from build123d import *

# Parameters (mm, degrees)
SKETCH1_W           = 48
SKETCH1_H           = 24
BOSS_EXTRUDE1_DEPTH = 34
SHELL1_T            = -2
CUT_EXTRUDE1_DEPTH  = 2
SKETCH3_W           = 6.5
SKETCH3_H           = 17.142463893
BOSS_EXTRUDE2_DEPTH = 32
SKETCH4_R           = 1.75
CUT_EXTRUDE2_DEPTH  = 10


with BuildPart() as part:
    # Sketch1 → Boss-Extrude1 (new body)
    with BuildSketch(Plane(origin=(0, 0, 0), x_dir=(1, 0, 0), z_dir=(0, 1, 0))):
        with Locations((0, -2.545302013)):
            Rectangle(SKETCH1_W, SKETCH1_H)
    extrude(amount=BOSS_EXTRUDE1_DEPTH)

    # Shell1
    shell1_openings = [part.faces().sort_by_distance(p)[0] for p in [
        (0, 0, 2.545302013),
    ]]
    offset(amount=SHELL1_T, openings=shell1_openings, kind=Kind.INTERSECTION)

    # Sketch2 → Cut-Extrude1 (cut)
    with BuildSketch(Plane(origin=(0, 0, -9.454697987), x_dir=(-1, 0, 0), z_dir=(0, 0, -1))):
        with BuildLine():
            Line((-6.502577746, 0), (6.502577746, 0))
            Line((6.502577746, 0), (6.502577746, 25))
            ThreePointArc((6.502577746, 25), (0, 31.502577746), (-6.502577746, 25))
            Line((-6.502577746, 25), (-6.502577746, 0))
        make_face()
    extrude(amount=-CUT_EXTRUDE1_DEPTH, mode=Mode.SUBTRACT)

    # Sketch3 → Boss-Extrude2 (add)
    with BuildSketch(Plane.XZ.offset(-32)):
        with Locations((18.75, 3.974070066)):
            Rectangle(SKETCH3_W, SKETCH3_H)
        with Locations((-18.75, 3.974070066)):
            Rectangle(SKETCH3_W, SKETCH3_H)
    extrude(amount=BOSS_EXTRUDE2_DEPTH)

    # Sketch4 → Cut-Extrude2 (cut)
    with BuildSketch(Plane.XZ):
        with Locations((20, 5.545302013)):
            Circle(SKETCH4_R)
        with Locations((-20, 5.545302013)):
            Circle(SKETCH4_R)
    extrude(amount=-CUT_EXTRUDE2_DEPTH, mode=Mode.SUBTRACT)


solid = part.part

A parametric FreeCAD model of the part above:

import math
import FreeCAD as App
import Part
import Sketcher


def faces_at(feature, points):
    """Names of the faces that lie closest to the given points."""
    faces = feature.Shape.Faces
    near = lambda p: min(range(len(faces)), key=lambda i: faces[i].distToShape(Part.Vertex(*p))[0])
    return sorted({f"Face{near(p) + 1}" for p in points})

doc = App.newDocument("Part")
params = doc.addObject("Spreadsheet::Sheet", "Params")
for row, (alias, value) in enumerate([
    ("sketch1_width", "48 mm"),
    ("sketch1_height", "24 mm"),
    ("pad1_length", "34 mm"),
    ("thickness_wall", "2 mm"),
    ("sketch2_height", "25 mm"),
    ("pocket1_length", "2 mm"),
    ("sketch3_width", "6.5 mm"),
    ("pad2_length", "32 mm"),
    ("sketch4_diameter", "3.5 mm"),
    ("pocket2_length", "10 mm"),
], start=1):
    params.set(f"A{row}", alias)
    params.set(f"B{row}", "=" + value)
    params.setAlias(f"B{row}", alias)

body = doc.addObject("PartDesign::Body", "Body")

sketch1 = doc.addObject("Sketcher::SketchObject", "Sketch")
body.addObject(sketch1)
sketch1.AttachmentSupport = (doc.XZ_Plane, [""])
sketch1.MapMode = "FlatFace"
sketch1.addGeometry([
    Part.LineSegment(App.Vector(-24, -9, 0), App.Vector(-24, 15, 0)),
    Part.LineSegment(App.Vector(-24, 15, 0), App.Vector(24, 15, 0)),
    Part.LineSegment(App.Vector(24, 15, 0), App.Vector(24, -9, 0)),
    Part.LineSegment(App.Vector(24, -9, 0), App.Vector(-24, -9, 0)),
], False)
sketch1.addConstraint([
    Sketcher.Constraint("Coincident", 0, 2, 1, 1),
    Sketcher.Constraint("Coincident", 1, 2, 2, 1),
    Sketcher.Constraint("Coincident", 2, 2, 3, 1),
    Sketcher.Constraint("Coincident", 3, 2, 0, 1),
    Sketcher.Constraint("Vertical", 0),
    Sketcher.Constraint("Horizontal", 1),
    Sketcher.Constraint("Vertical", 2),
    Sketcher.Constraint("Horizontal", 3),
    Sketcher.Constraint("DistanceX", 1, 1, 1, 2, 48.0),
    Sketcher.Constraint("DistanceY", 0, 1, 0, 2, 24.0),
    Sketcher.Constraint("DistanceX", 0, 2, -1, 1, 24.0),
    Sketcher.Constraint("DistanceY", -1, 1, 0, 2, 14.545302),
])
sketch1.setExpression("Constraints[8]", "Params.sketch1_width")
sketch1.setExpression("Constraints[9]", "Params.sketch1_height")
pad1 = doc.addObject("PartDesign::Pad", "Pad")
body.addObject(pad1)
pad1.Profile = sketch1
pad1.setExpression("Length", "Params.pad1_length")
pad1.Reversed = True
doc.recompute()

thickness = doc.addObject("PartDesign::Thickness", "Thickness")
body.addObject(thickness)
thickness.Base = (pad1, faces_at(pad1, [(0, 0, 2.545)]))
thickness.setExpression("Value", "Params.thickness_wall")
thickness.Reversed = True
thickness.Join = "Intersection"

sketch2 = doc.addObject("Sketcher::SketchObject", "Sketch001")
body.addObject(sketch2)
sketch2.AttachmentSupport = (doc.XY_Plane, [""])
sketch2.MapMode = "FlatFace"
sketch2.AttachmentOffset = App.Placement(App.Vector(0, 0, -9.454698), App.Rotation())
sketch2.addGeometry([
    Part.LineSegment(App.Vector(7, 0, 0), App.Vector(-7, 0, 0)),
    Part.LineSegment(App.Vector(-7, 0, 0), App.Vector(-7, 25, 0)),
    Part.ArcOfCircle(Part.Circle(App.Vector(0, 25, 0), App.Vector(0, 0, 1), 7), math.radians(0), math.radians(180)),
    Part.LineSegment(App.Vector(7, 25, 0), App.Vector(7, 0, 0)),
], False)
sketch2.addConstraint([
    Sketcher.Constraint("Coincident", 0, 2, 1, 1),
    Sketcher.Constraint("Tangent", 1, 2, 2, 2),
    Sketcher.Constraint("Tangent", 2, 1, 3, 1),
    Sketcher.Constraint("Coincident", 3, 2, 0, 1),
    Sketcher.Constraint("Horizontal", 0),
    Sketcher.Constraint("Vertical", 1),
    Sketcher.Constraint("Vertical", 3),
    Sketcher.Constraint("Symmetric", 0, 2, 3, 2, -1, 1),
    Sketcher.Constraint("DistanceY", 1, 1, 1, 2, 25.0),
    Sketcher.Constraint("Radius", 2, 6.502578),
])
sketch2.setExpression("Constraints[8]", "Params.sketch2_height")
pocket1 = doc.addObject("PartDesign::Pocket", "Pocket")
body.addObject(pocket1)
pocket1.Profile = sketch2
pocket1.setExpression("Length", "Params.pocket1_length")
pocket1.Reversed = True

sketch3 = doc.addObject("Sketcher::SketchObject", "Sketch002")
body.addObject(sketch3)
sketch3.AttachmentSupport = (doc.XZ_Plane, [""])
sketch3.MapMode = "FlatFace"
sketch3.AttachmentOffset = App.Placement(App.Vector(0, 0, -32), App.Rotation())
sketch3.addGeometry([
    Part.LineSegment(App.Vector(16, 13, 0), App.Vector(16, -5, 0)),
    Part.LineSegment(App.Vector(16, -5, 0), App.Vector(22, -5, 0)),
    Part.LineSegment(App.Vector(22, -5, 0), App.Vector(22, 13, 0)),
    Part.LineSegment(App.Vector(22, 13, 0), App.Vector(16, 13, 0)),
    Part.LineSegment(App.Vector(-22, 13, 0), App.Vector(-22, -5, 0)),
    Part.LineSegment(App.Vector(-22, -5, 0), App.Vector(-16, -5, 0)),
    Part.LineSegment(App.Vector(-16, -5, 0), App.Vector(-16, 13, 0)),
    Part.LineSegment(App.Vector(-16, 13, 0), App.Vector(-22, 13, 0)),
], False)
sketch3.addConstraint([
    Sketcher.Constraint("Coincident", 0, 2, 1, 1),
    Sketcher.Constraint("Coincident", 1, 2, 2, 1),
    Sketcher.Constraint("Coincident", 2, 2, 3, 1),
    Sketcher.Constraint("Coincident", 3, 2, 0, 1),
    Sketcher.Constraint("Coincident", 4, 2, 5, 1),
    Sketcher.Constraint("Coincident", 5, 2, 6, 1),
    Sketcher.Constraint("Coincident", 6, 2, 7, 1),
    Sketcher.Constraint("Coincident", 7, 2, 4, 1),
    Sketcher.Constraint("Vertical", 0),
    Sketcher.Constraint("Horizontal", 1),
    Sketcher.Constraint("Vertical", 2),
    Sketcher.Constraint("Horizontal", 3),
    Sketcher.Constraint("Vertical", 4),
    Sketcher.Constraint("Horizontal", 5),
    Sketcher.Constraint("Vertical", 6),
    Sketcher.Constraint("Horizontal", 7),
    Sketcher.Constraint("Symmetric", 1, 2, 4, 2, -2),
    Sketcher.Constraint("Symmetric", 3, 2, 6, 2, -2),
    Sketcher.Constraint("DistanceX", 1, 1, 1, 2, 6.5),
    Sketcher.Constraint("DistanceX", -1, 1, 1, 2, 22.0),
    Sketcher.Constraint("DistanceY", 0, 2, 0, 1, 17.142464),
    Sketcher.Constraint("DistanceY", 0, 2, -1, 1, 4.597162),
])
sketch3.setExpression("Constraints[18]", "Params.sketch3_width")
pad2 = doc.addObject("PartDesign::Pad", "Pad001")
body.addObject(pad2)
pad2.Profile = sketch3
pad2.setExpression("Length", "Params.pad2_length")

sketch4 = doc.addObject("Sketcher::SketchObject", "Sketch003")
body.addObject(sketch4)
sketch4.AttachmentSupport = (doc.XZ_Plane, [""])
sketch4.MapMode = "FlatFace"
sketch4.addGeometry([
    Part.Circle(App.Vector(20, 5.5, 0), App.Vector(0, 0, 1), 1.8),
    Part.Circle(App.Vector(-20, 5.5, 0), App.Vector(0, 0, 1), 1.8),
], False)
sketch4.addConstraint([
    Sketcher.Constraint("Equal", 0, 1),
    Sketcher.Constraint("Symmetric", 0, 3, 1, 3, -2),
    Sketcher.Constraint("Diameter", 0, 3.5),
    Sketcher.Constraint("DistanceX", -1, 1, 0, 3, 20.0),
    Sketcher.Constraint("DistanceY", -1, 1, 0, 3, 5.545302),
])
sketch4.setExpression("Constraints[2]", "Params.sketch4_diameter")
pocket2 = doc.addObject("PartDesign::Pocket", "Pocket001")
body.addObject(pocket2)
pocket2.Profile = sketch4
pocket2.setExpression("Length", "Params.pocket2_length")

doc.recompute()
